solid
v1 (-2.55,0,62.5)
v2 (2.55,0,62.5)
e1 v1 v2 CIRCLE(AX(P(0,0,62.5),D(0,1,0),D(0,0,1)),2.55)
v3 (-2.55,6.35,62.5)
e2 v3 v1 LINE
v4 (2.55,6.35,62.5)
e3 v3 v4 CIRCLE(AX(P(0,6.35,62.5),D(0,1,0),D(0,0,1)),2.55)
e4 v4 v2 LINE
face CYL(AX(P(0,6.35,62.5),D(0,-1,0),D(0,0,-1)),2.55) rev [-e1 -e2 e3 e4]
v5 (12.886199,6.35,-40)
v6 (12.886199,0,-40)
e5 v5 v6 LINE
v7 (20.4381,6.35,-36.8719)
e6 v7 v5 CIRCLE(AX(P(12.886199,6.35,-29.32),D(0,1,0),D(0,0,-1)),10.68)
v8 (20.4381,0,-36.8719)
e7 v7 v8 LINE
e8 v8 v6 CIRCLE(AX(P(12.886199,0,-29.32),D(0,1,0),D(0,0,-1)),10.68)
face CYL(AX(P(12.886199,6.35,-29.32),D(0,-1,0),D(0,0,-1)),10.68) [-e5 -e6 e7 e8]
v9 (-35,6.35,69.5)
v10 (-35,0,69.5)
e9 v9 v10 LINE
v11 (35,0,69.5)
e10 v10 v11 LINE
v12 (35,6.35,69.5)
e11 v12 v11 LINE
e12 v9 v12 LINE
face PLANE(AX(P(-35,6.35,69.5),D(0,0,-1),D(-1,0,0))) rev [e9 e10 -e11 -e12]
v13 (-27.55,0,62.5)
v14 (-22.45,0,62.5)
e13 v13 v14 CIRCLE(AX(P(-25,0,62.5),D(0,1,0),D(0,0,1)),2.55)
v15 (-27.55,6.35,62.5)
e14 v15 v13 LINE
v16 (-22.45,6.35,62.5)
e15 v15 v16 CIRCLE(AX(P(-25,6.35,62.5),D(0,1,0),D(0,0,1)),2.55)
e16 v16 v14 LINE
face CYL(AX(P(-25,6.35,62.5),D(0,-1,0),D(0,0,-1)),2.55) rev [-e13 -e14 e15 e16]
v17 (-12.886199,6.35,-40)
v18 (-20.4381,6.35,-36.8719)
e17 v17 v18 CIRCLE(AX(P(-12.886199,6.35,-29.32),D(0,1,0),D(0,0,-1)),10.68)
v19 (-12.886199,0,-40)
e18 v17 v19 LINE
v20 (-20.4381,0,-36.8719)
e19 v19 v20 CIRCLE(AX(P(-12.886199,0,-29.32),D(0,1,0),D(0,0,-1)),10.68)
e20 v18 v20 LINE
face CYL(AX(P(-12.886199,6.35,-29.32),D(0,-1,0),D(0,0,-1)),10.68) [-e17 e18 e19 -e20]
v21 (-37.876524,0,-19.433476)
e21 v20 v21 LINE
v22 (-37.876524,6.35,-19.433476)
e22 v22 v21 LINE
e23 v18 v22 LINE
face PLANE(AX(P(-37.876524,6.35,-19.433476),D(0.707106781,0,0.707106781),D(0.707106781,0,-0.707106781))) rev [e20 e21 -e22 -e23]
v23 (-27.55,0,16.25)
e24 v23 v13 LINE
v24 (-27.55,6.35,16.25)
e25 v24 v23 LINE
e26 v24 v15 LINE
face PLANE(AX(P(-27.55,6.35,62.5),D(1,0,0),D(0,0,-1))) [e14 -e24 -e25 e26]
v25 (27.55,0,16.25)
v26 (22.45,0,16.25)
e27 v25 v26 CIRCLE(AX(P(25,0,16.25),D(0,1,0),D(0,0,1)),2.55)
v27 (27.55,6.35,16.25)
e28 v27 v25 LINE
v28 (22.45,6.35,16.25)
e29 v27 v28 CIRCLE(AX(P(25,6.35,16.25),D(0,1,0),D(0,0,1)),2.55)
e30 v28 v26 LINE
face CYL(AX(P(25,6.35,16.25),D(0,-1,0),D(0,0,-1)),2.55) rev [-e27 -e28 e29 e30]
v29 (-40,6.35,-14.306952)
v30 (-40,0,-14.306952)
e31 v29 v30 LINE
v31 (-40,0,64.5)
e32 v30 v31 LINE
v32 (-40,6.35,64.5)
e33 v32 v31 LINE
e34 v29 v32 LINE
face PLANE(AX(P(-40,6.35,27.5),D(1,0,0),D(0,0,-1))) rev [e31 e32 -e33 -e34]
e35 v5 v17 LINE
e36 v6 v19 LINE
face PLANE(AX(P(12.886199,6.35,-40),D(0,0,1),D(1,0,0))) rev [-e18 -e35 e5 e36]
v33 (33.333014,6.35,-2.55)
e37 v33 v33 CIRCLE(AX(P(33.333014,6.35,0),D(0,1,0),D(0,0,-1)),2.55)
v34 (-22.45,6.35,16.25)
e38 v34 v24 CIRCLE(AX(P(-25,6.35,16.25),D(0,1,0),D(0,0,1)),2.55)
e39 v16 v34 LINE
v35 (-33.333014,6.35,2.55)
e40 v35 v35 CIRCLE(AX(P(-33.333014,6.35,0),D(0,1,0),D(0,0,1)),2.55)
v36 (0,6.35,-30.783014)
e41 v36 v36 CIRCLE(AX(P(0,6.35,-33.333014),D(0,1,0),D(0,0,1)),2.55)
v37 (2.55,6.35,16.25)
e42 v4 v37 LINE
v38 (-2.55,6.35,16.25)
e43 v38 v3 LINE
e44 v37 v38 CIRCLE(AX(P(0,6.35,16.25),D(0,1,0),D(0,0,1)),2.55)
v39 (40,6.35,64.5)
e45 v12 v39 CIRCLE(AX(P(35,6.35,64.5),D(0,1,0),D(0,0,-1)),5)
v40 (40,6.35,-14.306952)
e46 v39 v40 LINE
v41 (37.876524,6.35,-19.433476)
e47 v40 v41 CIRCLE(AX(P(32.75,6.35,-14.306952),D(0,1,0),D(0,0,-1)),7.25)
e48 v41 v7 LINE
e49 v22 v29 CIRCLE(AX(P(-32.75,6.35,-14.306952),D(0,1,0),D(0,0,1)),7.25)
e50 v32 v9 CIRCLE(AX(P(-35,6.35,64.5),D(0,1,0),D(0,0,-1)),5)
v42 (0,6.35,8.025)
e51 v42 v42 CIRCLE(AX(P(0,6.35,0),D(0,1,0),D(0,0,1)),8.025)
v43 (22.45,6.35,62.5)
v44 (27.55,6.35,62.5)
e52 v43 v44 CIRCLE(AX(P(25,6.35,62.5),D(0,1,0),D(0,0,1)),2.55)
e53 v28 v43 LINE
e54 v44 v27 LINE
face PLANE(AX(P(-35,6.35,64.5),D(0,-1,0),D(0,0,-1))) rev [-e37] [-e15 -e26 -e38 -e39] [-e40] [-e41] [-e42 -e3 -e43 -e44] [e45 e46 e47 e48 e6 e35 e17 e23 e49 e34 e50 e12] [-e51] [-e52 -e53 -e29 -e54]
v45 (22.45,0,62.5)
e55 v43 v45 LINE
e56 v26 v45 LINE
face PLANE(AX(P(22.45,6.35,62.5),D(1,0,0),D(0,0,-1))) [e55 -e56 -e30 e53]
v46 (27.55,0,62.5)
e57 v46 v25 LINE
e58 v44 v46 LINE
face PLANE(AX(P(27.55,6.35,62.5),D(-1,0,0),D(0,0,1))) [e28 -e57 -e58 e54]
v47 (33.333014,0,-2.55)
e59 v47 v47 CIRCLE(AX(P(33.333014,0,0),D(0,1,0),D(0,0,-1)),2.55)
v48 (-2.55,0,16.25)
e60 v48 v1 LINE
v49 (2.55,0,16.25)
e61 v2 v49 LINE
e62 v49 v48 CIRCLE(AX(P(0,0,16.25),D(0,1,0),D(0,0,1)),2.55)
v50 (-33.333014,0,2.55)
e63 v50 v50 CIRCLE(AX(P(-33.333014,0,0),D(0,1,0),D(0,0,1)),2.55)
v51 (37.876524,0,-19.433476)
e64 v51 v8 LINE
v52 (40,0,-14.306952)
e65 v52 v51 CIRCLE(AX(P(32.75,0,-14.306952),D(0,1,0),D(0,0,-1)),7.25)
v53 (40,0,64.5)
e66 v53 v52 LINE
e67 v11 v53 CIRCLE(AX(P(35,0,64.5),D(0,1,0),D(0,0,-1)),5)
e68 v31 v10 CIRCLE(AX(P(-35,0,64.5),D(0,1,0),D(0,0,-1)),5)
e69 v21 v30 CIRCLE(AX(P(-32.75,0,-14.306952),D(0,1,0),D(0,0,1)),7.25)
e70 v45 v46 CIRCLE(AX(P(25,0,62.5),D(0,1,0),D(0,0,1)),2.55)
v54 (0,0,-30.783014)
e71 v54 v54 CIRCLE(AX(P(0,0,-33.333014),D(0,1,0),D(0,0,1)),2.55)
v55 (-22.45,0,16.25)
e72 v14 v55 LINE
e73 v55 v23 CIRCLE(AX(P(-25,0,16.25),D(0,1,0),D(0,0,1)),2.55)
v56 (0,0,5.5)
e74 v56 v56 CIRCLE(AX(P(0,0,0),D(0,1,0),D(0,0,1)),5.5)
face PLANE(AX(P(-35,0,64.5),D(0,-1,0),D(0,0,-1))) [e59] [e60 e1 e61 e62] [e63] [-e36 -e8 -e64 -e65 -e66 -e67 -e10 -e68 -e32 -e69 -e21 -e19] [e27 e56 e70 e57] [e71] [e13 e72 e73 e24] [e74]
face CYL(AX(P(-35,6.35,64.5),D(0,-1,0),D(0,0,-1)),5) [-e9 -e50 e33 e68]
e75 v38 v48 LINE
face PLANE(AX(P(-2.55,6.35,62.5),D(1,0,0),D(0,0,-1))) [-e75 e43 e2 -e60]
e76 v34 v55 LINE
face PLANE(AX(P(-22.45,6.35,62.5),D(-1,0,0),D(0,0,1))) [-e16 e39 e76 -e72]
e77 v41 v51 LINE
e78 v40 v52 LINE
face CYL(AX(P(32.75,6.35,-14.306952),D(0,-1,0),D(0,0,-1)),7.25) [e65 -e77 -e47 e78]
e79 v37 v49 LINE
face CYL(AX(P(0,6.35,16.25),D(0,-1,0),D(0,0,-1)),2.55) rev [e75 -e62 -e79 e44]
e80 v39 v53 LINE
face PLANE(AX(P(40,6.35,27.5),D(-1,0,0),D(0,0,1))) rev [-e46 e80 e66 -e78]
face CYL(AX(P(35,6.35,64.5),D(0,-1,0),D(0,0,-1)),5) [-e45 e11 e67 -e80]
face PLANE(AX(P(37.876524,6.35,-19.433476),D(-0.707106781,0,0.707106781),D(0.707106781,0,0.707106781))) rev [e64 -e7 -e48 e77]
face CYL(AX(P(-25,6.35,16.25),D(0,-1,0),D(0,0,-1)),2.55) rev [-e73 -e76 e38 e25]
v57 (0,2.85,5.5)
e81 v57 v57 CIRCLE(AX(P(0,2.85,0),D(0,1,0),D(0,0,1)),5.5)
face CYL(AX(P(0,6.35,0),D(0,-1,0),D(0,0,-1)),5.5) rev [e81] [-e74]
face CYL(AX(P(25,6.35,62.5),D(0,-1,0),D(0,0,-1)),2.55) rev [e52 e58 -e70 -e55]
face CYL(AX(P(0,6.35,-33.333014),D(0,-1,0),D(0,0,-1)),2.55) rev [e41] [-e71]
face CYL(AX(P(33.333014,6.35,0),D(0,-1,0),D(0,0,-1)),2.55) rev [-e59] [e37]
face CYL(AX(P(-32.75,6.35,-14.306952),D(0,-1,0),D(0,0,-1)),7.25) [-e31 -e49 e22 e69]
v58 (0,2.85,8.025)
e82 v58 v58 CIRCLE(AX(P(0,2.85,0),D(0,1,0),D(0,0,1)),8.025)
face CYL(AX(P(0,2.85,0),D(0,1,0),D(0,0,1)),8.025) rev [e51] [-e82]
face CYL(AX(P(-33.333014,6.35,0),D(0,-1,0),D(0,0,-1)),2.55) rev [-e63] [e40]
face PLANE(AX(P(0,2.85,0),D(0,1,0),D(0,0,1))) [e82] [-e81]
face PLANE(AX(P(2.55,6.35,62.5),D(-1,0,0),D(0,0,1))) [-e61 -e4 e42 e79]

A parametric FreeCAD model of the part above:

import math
import FreeCAD as App
import Part
import Sketcher

V = App.Vector
Q = App.Units.Quantity

doc = App.newDocument("Part")
params = doc.addObject("Spreadsheet::Sheet", "Params")
for row, (alias, value) in enumerate([
    ("sketch1_diameter", "11 mm"),
    ("sketch1_radius", "5 mm"),
    ("sketch1_diameter2", "5.1 mm"),
    ("sketch1_width", "70 mm"),
    ("sketch1_radius2", "7.25 mm"),
    ("pad1_length", "6.35 mm"),
    ("sketch2_diameter", "16.05 mm"),
    ("pocket1_length", "3.5 mm"),
], start=1):
    params.set(f"A{row}", alias)
    params.set(f"B{row}", "=" + value)
    params.setAlias(f"B{row}", alias)

body = doc.addObject("PartDesign::Body", "Body")

# Sketch on XZ plane
sketch1 = doc.addObject("Sketcher::SketchObject", "Sketch")
body.addObject(sketch1)
sketch1.AttachmentSupport = (doc.XZ_Plane, [""])
sketch1.MapMode = "FlatFace"
sketch1.addGeometry([
    Part.ArcOfCircle(Part.Circle(V(32.8, -14.3, 0), V(0, 0, 1), 7.2), math.radians(-45), math.radians(0)),  # 0
    Part.LineSegment(V(37.9, -19.4, 0), V(20.4, -36.9, 0)),  # 1
    Part.ArcOfCircle(Part.Circle(V(12.9, -29.3, 0), V(0, 0, 1), 10.7), math.radians(-90), math.radians(-45)),  # 2
    Part.LineSegment(V(12.9, -40, 0), V(-12.9, -40, 0)),  # 3
    Part.ArcOfCircle(Part.Circle(V(-12.9, -29.3, 0), V(0, 0, 1), 10.7), math.radians(-135), math.radians(-90)),  # 4
    Part.LineSegment(V(-20.4, -36.9, 0), V(-37.9, -19.4, 0)),  # 5
    Part.ArcOfCircle(Part.Circle(V(-32.8, -14.3, 0), V(0, 0, 1), 7.2), math.radians(180), math.radians(225)),  # 6
    Part.LineSegment(V(-40, -14.3, 0), V(-40, 64.5, 0)),  # 7
    Part.ArcOfCircle(Part.Circle(V(-35, 64.5, 0), V(0, 0, 1), 5), math.radians(90), math.radians(180)),  # 8
    Part.LineSegment(V(-35, 69.5, 0), V(35, 69.5, 0)),  # 9
    Part.ArcOfCircle(Part.Circle(V(35, 64.5, 0), V(0, 0, 1), 5), math.radians(0), math.radians(90)),  # 10
    Part.LineSegment(V(40, 64.5, 0), V(40, -14.3, 0)),  # 11
    Part.ArcOfCircle(Part.Circle(V(-25, 62.5, 0), V(0, 0, 1), 2.5), math.radians(0), math.radians(180)),  # 12
    Part.LineSegment(V(-27.6, 62.5, 0), V(-27.6, 16.2, 0)),  # 13
    Part.ArcOfCircle(Part.Circle(V(-25, 16.2, 0), V(0, 0, 1), 2.5), math.radians(180), math.radians(360)),  # 14
    Part.LineSegment(V(-22.4, 16.2, 0), V(-22.4, 62.5, 0)),  # 15
    Part.ArcOfCircle(Part.Circle(V(0, 62.5, 0), V(0, 0, 1), 2.5), math.radians(0), math.radians(180)),  # 16
    Part.LineSegment(V(-2.5, 62.5, 0), V(-2.5, 16.2, 0)),  # 17
    Part.ArcOfCircle(Part.Circle(V(0, 16.2, 0), V(0, 0, 1), 2.5), math.radians(180), math.radians(360)),  # 18
    Part.LineSegment(V(2.5, 16.2, 0), V(2.5, 62.5, 0)),  # 19
    Part.ArcOfCircle(Part.Circle(V(25, 62.5, 0), V(0, 0, 1), 2.5), math.radians(0), math.radians(180)),  # 20
    Part.LineSegment(V(22.4, 62.5, 0), V(22.4, 16.2, 0)),  # 21
    Part.ArcOfCircle(Part.Circle(V(25, 16.2, 0), V(0, 0, 1), 2.5), math.radians(180), math.radians(360)),  # 22
    Part.LineSegment(V(27.6, 16.2, 0), V(27.6, 62.5, 0)),  # 23
    Part.Circle(V(-33.3, 0, 0), V(0, 0, 1), 2.5),  # 24
    Part.Circle(V(0, 0, 0), V(0, 0, 1), 5.5),  # 25
    Part.Circle(V(33.3, 0, 0), V(0, 0, 1), 2.5),  # 26
    Part.Circle(V(0, -33.3, 0), V(0, 0, 1), 2.5),  # 27
], False)
sketch1.addConstraint([
    Sketcher.Constraint("Tangent", 0, 1, 1, 1),
    Sketcher.Constraint("Tangent", 1, 2, 2, 2),
    Sketcher.Constraint("Tangent", 2, 1, 3, 1),
    Sketcher.Constraint("Tangent", 3, 2, 4, 2),
    Sketcher.Constraint("Tangent", 4, 1, 5, 1),
    Sketcher.Constraint("Tangent", 5, 2, 6, 2),
    Sketcher.Constraint("Tangent", 6, 1, 7, 1),
    Sketcher.Constraint("Tangent", 7, 2, 8, 2),
    Sketcher.Constraint("Tangent", 8, 1, 9, 1),
    Sketcher.Constraint("Tangent", 9, 2, 10, 2),
    Sketcher.Constraint("Tangent", 10, 1, 11, 1),
    Sketcher.Constraint("Tangent", 11, 2, 0, 2),
    Sketcher.Constraint("Tangent", 12, 2, 13, 1),
    Sketcher.Constraint("Tangent", 13, 2, 14, 1),
    Sketcher.Constraint("Tangent", 14, 2, 15, 1),
    Sketcher.Constraint("Tangent", 15, 2, 12, 1),
    Sketcher.Constraint("Tangent", 16, 2, 17, 1),
    Sketcher.Constraint("Tangent", 17, 2, 18, 1),
    Sketcher.Constraint("Tangent", 18, 2, 19, 1),
    Sketcher.Constraint("Tangent", 19, 2, 16, 1),
    Sketcher.Constraint("Tangent", 20, 2, 21, 1),
    Sketcher.Constraint("Tangent", 21, 2, 22, 1),
    Sketcher.Constraint("Tangent", 22, 2, 23, 1),
    Sketcher.Constraint("Tangent", 23, 2, 20, 1),
    Sketcher.Constraint("Horizontal", 3),
    Sketcher.Constraint("Vertical", 7),
    Sketcher.Constraint("Horizontal", 9),
    Sketcher.Constraint("Vertical", 11),
    Sketcher.Constraint("Vertical", 13),
    Sketcher.Constraint("Vertical", 15),
    Sketcher.Constraint("Vertical", 17),
    Sketcher.Constraint("Vertical", 19),
    Sketcher.Constraint("Vertical", 21),
    Sketcher.Constraint("Vertical", 23),
    Sketcher.Constraint("Coincident", 25, 3, -1, 1),
    Sketcher.Constraint("Equal", 2, 4),
    Sketcher.Constraint("Equal", 0, 6),
    Sketcher.Constraint("Equal", 8, 10),
    Sketcher.Constraint("Equal", 14, 16),
    Sketcher.Constraint("Equal", 18, 20),
    Sketcher.Constraint("Equal", 22, 24),
    Sketcher.Constraint("Equal", 24, 26),
    Sketcher.Constraint("Equal", 26, 27),
    Sketcher.Constraint("Symmetric", 24, 3, 26, 3, -1, 1),
    Sketcher.Constraint("Symmetric", 0, 3, 6, 3, -2),
    Sketcher.Constraint("Symmetric", 12, 3, 20, 3, -2),
    Sketcher.Constraint("PointOnObject", 16, 3, -2),
    Sketcher.Constraint("PointOnObject", 24, 3, -1),
    Sketcher.Constraint("PointOnObject", 27, 3, -2),
    Sketcher.Constraint("Perpendicular", 1, 5),
    Sketcher.Constraint("Horizontal", 12, 3, 16, 3),
    Sketcher.Constraint("Horizontal", 14, 3, 18, 3),
    Sketcher.Constraint("Horizontal", 18, 3, 22, 3),
    Sketcher.Constraint("Horizontal", 1, 2, 4, 1),
    Sketcher.Constraint("Diameter", 25, Q("11 mm")),
    Sketcher.Constraint("Radius", 8, Q("5 mm")),
    Sketcher.Constraint("Diameter", 24, Q("5.1 mm")),
    Sketcher.Constraint("DistanceX", 9, 1, 9, 2, Q("70 mm")),
    Sketcher.Constraint("Radius", 0, Q("7.25 mm")),
    Sketcher.Constraint("Radius", 2, Q("10.68 mm")),
    Sketcher.Constraint("DistanceX", 12, 3, -1, 1, Q("25 mm")),
    Sketcher.Constraint("DistanceY", 2, 1, -1, 1, Q("40 mm")),
    Sketcher.Constraint("DistanceY", 12, 3, 8, 3, Q("2 mm")),
    Sketcher.Constraint("DistanceY", 13, 2, 13, 1, Q("46.25 mm")),
    Sketcher.Constraint("DistanceY", -1, 1, 8, 3, Q("64.5 mm")),
    Sketcher.Constraint("DistanceX", 3, 2, 3, 1, Q("25.772398 mm")),
    Sketcher.Constraint("DistanceY", 27, 3, 0, 3, Q("19.026062 mm")),
    Sketcher.Constraint("DistanceX", 26, 3, 0, 1, Q("4.54351 mm")),
])
sketch1.setExpression("Constraints[54]", "Params.sketch1_diameter")
sketch1.setExpression("Constraints[55]", "Params.sketch1_radius")
sketch1.setExpression("Constraints[56]", "Params.sketch1_diameter2")
sketch1.setExpression("Constraints[57]", "Params.sketch1_width")
sketch1.setExpression("Constraints[58]", "Params.sketch1_radius2")
pad1 = doc.addObject("PartDesign::Pad", "Pad")
body.addObject(pad1)
pad1.Profile = sketch1
pad1.setExpression("Length", "Params.pad1_length")
pad1.Reversed = True

# Sketch on XZ plane
sketch2 = doc.addObject("Sketcher::SketchObject", "Sketch001")
body.addObject(sketch2)
sketch2.AttachmentSupport = (doc.XZ_Plane, [""])
sketch2.MapMode = "FlatFace"
sketch2.AttachmentOffset = App.Placement(V(0, 0, -6.35), App.Rotation())
sketch2.addGeometry(Part.Circle(V(0, 0, 0), V(0, 0, 1), 8), False)
sketch2.addConstraint([
    Sketcher.Constraint("Coincident", 0, 3, -1, 1),
    Sketcher.Constraint("Diameter", 0, Q("16.05 mm")),
])
sketch2.setExpression("Constraints[1]", "Params.sketch2_diameter")
pocket1 = doc.addObject("PartDesign::Pocket", "Pocket")
body.addObject(pocket1)
pocket1.Profile = sketch2
pocket1.setExpression("Length", "Params.pocket1_length")
pocket1.Reversed = True

doc.recompute()
